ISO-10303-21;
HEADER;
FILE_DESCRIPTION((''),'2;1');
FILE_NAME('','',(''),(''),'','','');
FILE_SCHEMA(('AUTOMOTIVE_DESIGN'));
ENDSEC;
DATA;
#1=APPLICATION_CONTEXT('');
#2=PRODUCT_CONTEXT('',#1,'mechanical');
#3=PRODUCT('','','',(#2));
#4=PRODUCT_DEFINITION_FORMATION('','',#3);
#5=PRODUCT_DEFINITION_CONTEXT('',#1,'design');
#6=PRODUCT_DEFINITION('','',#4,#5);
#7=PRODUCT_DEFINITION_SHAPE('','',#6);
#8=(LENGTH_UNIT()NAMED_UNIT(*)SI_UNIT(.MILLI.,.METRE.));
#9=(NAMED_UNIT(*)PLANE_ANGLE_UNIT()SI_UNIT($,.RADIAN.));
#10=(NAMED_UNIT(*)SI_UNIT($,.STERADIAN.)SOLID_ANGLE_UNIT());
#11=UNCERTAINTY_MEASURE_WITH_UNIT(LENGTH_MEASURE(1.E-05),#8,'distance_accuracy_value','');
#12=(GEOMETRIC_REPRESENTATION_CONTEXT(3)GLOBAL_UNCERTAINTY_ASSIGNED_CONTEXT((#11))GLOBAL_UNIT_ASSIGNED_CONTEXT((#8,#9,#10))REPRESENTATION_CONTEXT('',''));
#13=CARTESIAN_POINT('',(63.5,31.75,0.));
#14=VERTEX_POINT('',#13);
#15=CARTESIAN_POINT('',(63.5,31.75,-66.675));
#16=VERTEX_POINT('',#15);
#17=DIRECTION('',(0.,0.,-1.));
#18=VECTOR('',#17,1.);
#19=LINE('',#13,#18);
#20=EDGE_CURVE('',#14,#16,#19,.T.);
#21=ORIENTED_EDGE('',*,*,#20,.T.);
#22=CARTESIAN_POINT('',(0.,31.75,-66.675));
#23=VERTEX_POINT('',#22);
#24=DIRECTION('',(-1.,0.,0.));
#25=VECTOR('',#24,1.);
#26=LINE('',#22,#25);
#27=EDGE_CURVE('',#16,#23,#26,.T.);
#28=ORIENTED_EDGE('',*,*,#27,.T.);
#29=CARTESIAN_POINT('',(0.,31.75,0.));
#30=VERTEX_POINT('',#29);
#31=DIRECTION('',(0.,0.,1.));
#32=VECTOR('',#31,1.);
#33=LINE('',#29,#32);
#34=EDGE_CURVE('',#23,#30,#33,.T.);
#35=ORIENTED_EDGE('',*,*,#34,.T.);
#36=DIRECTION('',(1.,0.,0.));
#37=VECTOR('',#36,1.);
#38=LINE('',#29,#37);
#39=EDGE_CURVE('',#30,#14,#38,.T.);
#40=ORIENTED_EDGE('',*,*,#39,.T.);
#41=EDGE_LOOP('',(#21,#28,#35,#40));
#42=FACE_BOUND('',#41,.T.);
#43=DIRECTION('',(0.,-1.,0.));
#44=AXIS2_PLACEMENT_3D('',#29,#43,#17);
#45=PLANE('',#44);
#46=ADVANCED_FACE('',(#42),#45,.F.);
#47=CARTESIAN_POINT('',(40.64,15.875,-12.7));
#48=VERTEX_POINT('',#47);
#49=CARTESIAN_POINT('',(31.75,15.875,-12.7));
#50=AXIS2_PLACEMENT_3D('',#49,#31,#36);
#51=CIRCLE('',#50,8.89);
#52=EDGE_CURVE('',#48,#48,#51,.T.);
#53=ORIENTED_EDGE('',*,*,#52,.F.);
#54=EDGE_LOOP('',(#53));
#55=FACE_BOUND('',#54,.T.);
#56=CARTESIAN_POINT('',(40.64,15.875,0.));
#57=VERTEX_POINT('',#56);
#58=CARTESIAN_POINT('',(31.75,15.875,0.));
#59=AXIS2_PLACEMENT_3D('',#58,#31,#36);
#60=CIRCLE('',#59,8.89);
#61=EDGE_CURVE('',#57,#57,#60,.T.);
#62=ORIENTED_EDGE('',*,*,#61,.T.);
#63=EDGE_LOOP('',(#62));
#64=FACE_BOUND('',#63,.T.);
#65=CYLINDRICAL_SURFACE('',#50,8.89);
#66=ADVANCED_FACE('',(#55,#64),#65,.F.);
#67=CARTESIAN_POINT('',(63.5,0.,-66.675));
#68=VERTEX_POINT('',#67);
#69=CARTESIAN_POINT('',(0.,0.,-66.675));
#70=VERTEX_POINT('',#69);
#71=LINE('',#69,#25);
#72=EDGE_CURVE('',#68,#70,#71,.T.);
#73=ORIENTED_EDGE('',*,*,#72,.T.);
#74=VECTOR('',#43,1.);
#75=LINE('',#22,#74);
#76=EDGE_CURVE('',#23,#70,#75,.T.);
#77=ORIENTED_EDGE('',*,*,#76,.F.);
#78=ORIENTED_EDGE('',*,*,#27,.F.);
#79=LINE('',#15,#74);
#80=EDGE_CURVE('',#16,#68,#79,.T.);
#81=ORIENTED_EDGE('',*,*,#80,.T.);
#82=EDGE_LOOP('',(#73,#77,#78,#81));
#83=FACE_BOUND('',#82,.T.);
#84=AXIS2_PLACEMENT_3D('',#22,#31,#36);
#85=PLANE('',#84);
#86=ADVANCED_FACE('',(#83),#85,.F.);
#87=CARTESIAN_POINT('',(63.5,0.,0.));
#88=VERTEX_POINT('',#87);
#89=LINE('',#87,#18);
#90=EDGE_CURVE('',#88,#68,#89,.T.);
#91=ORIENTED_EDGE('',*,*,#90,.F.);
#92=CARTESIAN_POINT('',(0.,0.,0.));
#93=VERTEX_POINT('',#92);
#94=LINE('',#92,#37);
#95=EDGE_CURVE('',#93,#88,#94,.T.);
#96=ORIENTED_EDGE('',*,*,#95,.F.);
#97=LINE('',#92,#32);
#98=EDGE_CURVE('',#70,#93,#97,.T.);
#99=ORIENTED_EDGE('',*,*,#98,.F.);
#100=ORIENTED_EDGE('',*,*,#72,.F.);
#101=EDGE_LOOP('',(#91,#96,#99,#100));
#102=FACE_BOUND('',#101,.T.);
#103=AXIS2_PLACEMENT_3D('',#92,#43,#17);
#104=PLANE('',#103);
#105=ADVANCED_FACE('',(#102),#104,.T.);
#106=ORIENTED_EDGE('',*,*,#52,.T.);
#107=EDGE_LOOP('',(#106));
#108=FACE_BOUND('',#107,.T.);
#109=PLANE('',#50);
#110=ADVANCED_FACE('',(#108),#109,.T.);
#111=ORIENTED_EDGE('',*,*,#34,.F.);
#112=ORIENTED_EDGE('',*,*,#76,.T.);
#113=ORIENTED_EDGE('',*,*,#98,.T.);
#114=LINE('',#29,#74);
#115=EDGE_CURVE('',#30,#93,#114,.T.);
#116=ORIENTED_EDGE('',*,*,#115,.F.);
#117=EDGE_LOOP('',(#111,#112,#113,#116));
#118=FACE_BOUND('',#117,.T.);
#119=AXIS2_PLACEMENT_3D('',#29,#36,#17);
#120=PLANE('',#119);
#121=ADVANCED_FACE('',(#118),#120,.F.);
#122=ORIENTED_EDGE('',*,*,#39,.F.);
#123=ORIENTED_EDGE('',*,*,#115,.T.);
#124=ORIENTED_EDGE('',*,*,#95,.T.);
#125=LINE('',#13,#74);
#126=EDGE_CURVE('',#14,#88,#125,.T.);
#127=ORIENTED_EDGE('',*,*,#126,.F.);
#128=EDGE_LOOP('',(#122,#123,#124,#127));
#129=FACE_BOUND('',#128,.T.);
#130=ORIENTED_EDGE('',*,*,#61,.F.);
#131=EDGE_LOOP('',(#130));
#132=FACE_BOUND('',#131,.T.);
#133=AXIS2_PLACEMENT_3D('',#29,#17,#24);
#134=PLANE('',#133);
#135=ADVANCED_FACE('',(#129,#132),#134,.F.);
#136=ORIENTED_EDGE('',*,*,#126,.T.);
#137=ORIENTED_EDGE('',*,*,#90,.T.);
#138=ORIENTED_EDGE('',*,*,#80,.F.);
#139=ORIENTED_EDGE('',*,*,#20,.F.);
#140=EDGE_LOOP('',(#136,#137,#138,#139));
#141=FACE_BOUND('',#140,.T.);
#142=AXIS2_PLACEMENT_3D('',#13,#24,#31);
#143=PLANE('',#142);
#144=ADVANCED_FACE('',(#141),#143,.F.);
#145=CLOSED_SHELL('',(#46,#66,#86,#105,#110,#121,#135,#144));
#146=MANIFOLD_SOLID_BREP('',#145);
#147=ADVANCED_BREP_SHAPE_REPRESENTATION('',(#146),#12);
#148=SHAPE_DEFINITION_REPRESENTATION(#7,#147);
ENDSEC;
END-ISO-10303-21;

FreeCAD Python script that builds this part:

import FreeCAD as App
import Part
import Sketcher
from FreeCAD import Vector
Q = App.Units.Quantity

doc = App.newDocument("Part")
body = doc.addObject("PartDesign::Body", "Body")

# Sketch on XZ plane
sketch1 = body.newObject("Sketcher::SketchObject", "Sketch")
sketch1.AttachmentSupport = (doc.getObject("XZ_Plane"), [""])
sketch1.MapMode = "FlatFace"
sketch1.addGeometry(Part.LineSegment(Vector(0, -67, 0), Vector(0, 0, 0)), False)
sketch1.addGeometry(Part.LineSegment(Vector(0, 0, 0), Vector(64, 0, 0)), False)
sketch1.addGeometry(Part.LineSegment(Vector(64, 0, 0), Vector(64, -67, 0)), False)
sketch1.addGeometry(Part.LineSegment(Vector(64, -67, 0), Vector(0, -67, 0)), False)
sketch1.addConstraint(Sketcher.Constraint("Coincident", 0, 2, 1, 1))
sketch1.addConstraint(Sketcher.Constraint("Coincident", 1, 2, 2, 1))
sketch1.addConstraint(Sketcher.Constraint("Coincident", 2, 2, 3, 1))
sketch1.addConstraint(Sketcher.Constraint("Coincident", 3, 2, 0, 1))
sketch1.addConstraint(Sketcher.Constraint("Vertical", 0))
sketch1.addConstraint(Sketcher.Constraint("Horizontal", 1))
sketch1.addConstraint(Sketcher.Constraint("Vertical", 2))
sketch1.addConstraint(Sketcher.Constraint("Horizontal", 3))
sketch1.addConstraint(Sketcher.Constraint("Coincident", 0, 2, -1, 1))
sketch1.addConstraint(Sketcher.Constraint("DistanceX", 1, 1, 1, 2, Q("2.5 in")))
sketch1.addConstraint(Sketcher.Constraint("DistanceY", 0, 1, 0, 2, Q("2.625 in")))
pad1 = body.newObject("PartDesign::Pad", "Pad")
pad1.Profile = sketch1
pad1.Length = Q("1.25 in")
pad1.Reversed = True

# Sketch on XY plane
sketch2 = body.newObject("Sketcher::SketchObject", "Sketch001")
sketch2.AttachmentSupport = (doc.getObject("XY_Plane"), [""])
sketch2.MapMode = "FlatFace"
sketch2.addGeometry(Part.Circle(Vector(32, 16, 0), Vector(0, 0, 1), 9), False)
sketch2.addConstraint(Sketcher.Constraint("Diameter", 0, Q("0.7 in")))
sketch2.addConstraint(Sketcher.Constraint("DistanceX", -1, 1, 0, 3, Q("1.25 in")))
sketch2.addConstraint(Sketcher.Constraint("DistanceY", -1, 1, 0, 3, Q("0.625 in")))
pocket1 = body.newObject("PartDesign::Pocket", "Pocket")
pocket1.Profile = sketch2
pocket1.Length = Q("0.5 in")

doc.recompute()
